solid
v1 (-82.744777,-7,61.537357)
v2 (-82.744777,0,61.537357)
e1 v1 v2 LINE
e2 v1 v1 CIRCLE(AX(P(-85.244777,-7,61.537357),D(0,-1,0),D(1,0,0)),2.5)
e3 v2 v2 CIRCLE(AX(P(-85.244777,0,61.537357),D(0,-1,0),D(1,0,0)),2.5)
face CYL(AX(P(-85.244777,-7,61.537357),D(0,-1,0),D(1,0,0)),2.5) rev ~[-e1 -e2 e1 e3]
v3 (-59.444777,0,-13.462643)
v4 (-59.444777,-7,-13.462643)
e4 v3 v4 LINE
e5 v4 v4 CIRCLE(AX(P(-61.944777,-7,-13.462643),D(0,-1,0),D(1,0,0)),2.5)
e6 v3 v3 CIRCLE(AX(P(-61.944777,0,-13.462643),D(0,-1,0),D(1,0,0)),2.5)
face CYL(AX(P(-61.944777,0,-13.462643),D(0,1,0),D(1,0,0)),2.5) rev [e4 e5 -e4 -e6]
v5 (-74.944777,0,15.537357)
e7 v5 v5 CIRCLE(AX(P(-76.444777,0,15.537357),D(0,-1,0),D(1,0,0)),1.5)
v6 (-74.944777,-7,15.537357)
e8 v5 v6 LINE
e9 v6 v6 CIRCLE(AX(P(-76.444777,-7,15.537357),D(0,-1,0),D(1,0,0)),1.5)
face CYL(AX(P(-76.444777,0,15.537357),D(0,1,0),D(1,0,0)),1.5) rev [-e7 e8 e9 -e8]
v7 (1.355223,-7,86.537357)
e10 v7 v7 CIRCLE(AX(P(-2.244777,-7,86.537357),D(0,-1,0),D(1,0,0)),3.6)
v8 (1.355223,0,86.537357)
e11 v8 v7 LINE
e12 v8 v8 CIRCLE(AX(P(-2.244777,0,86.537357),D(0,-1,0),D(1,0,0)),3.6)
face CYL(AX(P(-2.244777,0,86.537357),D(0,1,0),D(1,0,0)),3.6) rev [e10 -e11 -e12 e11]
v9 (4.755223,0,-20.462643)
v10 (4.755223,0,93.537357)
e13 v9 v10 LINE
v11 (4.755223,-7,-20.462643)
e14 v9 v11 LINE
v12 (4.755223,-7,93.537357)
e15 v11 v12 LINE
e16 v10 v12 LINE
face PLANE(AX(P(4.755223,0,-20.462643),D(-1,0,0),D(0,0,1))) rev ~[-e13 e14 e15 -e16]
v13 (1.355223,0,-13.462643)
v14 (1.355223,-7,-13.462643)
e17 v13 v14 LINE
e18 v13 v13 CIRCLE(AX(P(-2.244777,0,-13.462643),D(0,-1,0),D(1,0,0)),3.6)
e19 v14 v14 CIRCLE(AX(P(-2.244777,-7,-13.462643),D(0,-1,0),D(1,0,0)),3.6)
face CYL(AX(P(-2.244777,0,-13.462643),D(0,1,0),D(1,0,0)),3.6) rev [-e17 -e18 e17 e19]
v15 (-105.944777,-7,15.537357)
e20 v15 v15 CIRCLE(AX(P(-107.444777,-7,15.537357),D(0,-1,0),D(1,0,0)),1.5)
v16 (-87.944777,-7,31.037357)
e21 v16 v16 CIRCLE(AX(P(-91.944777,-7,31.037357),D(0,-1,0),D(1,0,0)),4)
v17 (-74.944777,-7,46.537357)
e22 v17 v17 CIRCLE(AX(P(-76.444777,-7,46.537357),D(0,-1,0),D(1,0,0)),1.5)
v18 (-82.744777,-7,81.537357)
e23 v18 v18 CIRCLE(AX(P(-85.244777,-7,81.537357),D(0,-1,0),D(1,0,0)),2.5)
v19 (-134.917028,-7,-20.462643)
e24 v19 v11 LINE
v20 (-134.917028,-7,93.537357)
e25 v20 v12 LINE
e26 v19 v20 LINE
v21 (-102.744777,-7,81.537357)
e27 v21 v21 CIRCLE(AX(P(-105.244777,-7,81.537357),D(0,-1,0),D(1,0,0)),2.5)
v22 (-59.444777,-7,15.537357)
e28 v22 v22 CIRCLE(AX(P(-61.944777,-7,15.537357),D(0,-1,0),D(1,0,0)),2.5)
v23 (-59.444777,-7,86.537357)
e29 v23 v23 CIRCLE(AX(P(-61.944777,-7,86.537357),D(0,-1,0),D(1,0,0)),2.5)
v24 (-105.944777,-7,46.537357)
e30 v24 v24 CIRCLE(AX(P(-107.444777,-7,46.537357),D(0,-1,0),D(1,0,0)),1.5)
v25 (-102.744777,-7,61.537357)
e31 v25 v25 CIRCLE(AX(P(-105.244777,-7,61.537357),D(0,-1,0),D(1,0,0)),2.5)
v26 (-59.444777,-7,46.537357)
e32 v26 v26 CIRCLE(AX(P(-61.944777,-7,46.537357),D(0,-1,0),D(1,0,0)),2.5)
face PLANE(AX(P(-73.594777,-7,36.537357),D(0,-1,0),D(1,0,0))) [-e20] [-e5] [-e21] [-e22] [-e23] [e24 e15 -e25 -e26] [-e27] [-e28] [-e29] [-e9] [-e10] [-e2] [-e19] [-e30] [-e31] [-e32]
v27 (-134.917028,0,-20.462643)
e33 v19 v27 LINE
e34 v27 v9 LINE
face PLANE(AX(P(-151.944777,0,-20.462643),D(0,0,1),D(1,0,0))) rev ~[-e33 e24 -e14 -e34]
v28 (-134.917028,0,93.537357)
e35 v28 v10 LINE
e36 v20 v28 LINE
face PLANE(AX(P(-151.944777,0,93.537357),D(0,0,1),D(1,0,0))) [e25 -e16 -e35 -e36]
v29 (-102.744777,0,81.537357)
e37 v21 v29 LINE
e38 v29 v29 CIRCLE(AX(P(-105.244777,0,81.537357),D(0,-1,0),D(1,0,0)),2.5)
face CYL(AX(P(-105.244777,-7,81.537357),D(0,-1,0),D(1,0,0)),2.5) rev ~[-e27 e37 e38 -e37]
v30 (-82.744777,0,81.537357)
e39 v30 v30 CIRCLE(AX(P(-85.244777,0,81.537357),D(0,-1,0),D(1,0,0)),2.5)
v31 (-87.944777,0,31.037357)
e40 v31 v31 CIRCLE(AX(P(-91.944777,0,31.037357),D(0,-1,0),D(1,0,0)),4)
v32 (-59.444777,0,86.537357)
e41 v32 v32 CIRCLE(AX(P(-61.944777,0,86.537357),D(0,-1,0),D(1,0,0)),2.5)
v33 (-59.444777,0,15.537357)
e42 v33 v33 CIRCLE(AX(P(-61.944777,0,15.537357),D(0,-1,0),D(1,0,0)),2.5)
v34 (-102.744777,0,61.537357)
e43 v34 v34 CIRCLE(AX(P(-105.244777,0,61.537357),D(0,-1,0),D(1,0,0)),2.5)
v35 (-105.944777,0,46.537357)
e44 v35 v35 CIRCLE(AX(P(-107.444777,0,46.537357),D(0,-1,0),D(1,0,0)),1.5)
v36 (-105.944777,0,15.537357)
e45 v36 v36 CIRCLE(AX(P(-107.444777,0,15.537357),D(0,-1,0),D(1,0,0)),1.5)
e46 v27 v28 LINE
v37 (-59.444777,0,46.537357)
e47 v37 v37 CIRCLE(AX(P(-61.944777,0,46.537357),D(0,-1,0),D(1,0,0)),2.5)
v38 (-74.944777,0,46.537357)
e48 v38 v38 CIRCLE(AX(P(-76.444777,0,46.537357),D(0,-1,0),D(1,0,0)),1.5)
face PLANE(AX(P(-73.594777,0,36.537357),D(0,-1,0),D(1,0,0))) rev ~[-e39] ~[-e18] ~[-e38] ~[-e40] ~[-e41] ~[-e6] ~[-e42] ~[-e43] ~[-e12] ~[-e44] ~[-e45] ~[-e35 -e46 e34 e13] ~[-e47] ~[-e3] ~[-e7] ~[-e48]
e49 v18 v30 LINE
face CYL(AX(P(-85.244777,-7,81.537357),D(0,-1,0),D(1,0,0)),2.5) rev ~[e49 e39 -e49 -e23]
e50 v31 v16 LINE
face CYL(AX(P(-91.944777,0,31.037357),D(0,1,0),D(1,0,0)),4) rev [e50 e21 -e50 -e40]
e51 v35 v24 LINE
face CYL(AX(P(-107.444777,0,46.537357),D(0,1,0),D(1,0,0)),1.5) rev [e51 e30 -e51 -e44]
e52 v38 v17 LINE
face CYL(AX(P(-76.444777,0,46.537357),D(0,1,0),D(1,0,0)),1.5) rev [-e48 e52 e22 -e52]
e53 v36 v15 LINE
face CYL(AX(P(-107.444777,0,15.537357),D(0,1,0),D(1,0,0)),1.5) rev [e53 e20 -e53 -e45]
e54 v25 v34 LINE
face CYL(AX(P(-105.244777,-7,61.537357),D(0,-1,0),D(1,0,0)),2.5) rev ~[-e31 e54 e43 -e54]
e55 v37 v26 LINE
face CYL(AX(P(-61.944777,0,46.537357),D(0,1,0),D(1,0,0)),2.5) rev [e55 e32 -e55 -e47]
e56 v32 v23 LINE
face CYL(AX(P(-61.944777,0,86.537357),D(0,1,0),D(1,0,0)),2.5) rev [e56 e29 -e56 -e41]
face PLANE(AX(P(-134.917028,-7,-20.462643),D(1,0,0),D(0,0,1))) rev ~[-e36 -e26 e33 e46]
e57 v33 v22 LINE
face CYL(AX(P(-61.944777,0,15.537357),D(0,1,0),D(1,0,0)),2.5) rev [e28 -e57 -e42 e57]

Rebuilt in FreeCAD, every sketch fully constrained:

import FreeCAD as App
import Part
import Sketcher
Q = App.Units.Quantity


def add_polygon(sketch, points):
    """Adds a closed chain of lines whose ends are joined by coincident constraints."""
    first, n = sketch.GeometryCount, len(points)
    for a, b in zip(points, points[1:] + points[:1]):
        sketch.addGeometry(Part.LineSegment(App.Vector(*a, 0), App.Vector(*b, 0)), False)
    for i in range(n):
        sketch.addConstraint(Sketcher.Constraint("Coincident", first + i, 2, first + (i + 1) % n, 1))

doc = App.newDocument("Part")
body = doc.addObject("PartDesign::Body", "Body")

sketch1 = doc.addObject("Sketcher::SketchObject", "Sketch")
body.addObject(sketch1)
sketch1.AttachmentSupport = (doc.XZ_Plane, [""])
sketch1.MapMode = "FlatFace"
add_polygon(sketch1, [(-151.9, 93.5), (-151.9, -20.5), (4.8, -20.5), (4.8, 93.5)])
sketch1.addGeometry(Part.Circle(App.Vector(-61.9, -13.5, 0), App.Vector(0, 0, 1), 2.5), False)
sketch1.addGeometry(Part.Circle(App.Vector(-107.4, 15.5, 0), App.Vector(0, 0, 1), 1.5), False)
sketch1.addGeometry(Part.Circle(App.Vector(-91.9, 31, 0), App.Vector(0, 0, 1), 4), False)
sketch1.addGeometry(Part.Circle(App.Vector(-76.4, 15.5, 0), App.Vector(0, 0, 1), 1.5), False)
sketch1.addGeometry(Part.Circle(App.Vector(-61.9, 15.5, 0), App.Vector(0, 0, 1), 2.5), False)
sketch1.addGeometry(Part.Circle(App.Vector(-2.2, -13.5, 0), App.Vector(0, 0, 1), 3.6), False)
sketch1.addGeometry(Part.Circle(App.Vector(-107.4, 46.5, 0), App.Vector(0, 0, 1), 1.5), False)
sketch1.addGeometry(Part.Circle(App.Vector(-76.4, 46.5, 0), App.Vector(0, 0, 1), 1.5), False)
sketch1.addGeometry(Part.Circle(App.Vector(-61.9, 46.5, 0), App.Vector(0, 0, 1), 2.5), False)
sketch1.addGeometry(Part.Circle(App.Vector(-61.9, 86.5, 0), App.Vector(0, 0, 1), 2.5), False)
sketch1.addGeometry(Part.Circle(App.Vector(-2.2, 86.5, 0), App.Vector(0, 0, 1), 3.6), False)
sketch1.addConstraint(Sketcher.Constraint("Vertical", 0))
sketch1.addConstraint(Sketcher.Constraint("Horizontal", 1))
sketch1.addConstraint(Sketcher.Constraint("Vertical", 2))
sketch1.addConstraint(Sketcher.Constraint("Horizontal", 3))
sketch1.addConstraint(Sketcher.Constraint("Equal", 5, 7))
sketch1.addConstraint(Sketcher.Constraint("Equal", 4, 8))
sketch1.addConstraint(Sketcher.Constraint("Equal", 7, 10))
sketch1.addConstraint(Sketcher.Constraint("Equal", 10, 11))
sketch1.addConstraint(Sketcher.Constraint("Equal", 8, 12))
sketch1.addConstraint(Sketcher.Constraint("Equal", 12, 13))
sketch1.addConstraint(Sketcher.Constraint("Equal", 9, 14))
sketch1.addConstraint(Sketcher.Constraint("Horizontal", 5, 3, 7, 3))
sketch1.addConstraint(Sketcher.Constraint("Horizontal", 7, 3, 8, 3))
sketch1.addConstraint(Sketcher.Constraint("Horizontal", 4, 3, 9, 3))
sketch1.addConstraint(Sketcher.Constraint("Horizontal", 10, 3, 11, 3))
sketch1.addConstraint(Sketcher.Constraint("Horizontal", 11, 3, 12, 3))
sketch1.addConstraint(Sketcher.Constraint("Horizontal", 13, 3, 14, 3))
sketch1.addConstraint(Sketcher.Constraint("Vertical", 4, 3, 8, 3))
sketch1.addConstraint(Sketcher.Constraint("Vertical", 5, 3, 10, 3))
sketch1.addConstraint(Sketcher.Constraint("Vertical", 7, 3, 11, 3))
sketch1.addConstraint(Sketcher.Constraint("Vertical", 8, 3, 12, 3))
sketch1.addConstraint(Sketcher.Constraint("Vertical", 12, 3, 13, 3))
sketch1.addConstraint(Sketcher.Constraint("Vertical", 9, 3, 14, 3))
sketch1.addConstraint(Sketcher.Constraint("Diameter", 4, Q("5 mm")))
sketch1.addConstraint(Sketcher.Constraint("Diameter", 5, Q("3 mm")))
sketch1.addConstraint(Sketcher.Constraint("Diameter", 6, Q("8 mm")))
sketch1.addConstraint(Sketcher.Constraint("Diameter", 9, Q("7.2 mm")))
sketch1.addConstraint(Sketcher.Constraint("DistanceY", 0, 2, 0, 1, Q("114 mm")))
sketch1.addConstraint(Sketcher.Constraint("DistanceX", 1, 1, 1, 2, Q("156.7 mm")))
sketch1.addConstraint(Sketcher.Constraint("DistanceY", 4, 3, 5, 3, Q("29 mm")))
sketch1.addConstraint(Sketcher.Constraint("DistanceX", 6, 3, 4, 3, Q("30 mm")))
sketch1.addConstraint(Sketcher.Constraint("DistanceX", 5, 3, 7, 3, Q("31 mm")))
sketch1.addConstraint(Sketcher.Constraint("DistanceY", 5, 3, 10, 3, Q("31 mm")))
sketch1.addConstraint(Sketcher.Constraint("DistanceY", 12, 3, 13, 3, Q("40 mm")))
sketch1.addConstraint(Sketcher.Constraint("DistanceY", 0, 2, 5, 3, Q("36 mm")))
sketch1.addConstraint(Sketcher.Constraint("DistanceX", 0, 2, 6, 3, Q("60 mm")))
sketch1.addConstraint(Sketcher.Constraint("DistanceX", 9, 3, 1, 2, Q("7 mm")))
sketch1.addConstraint(Sketcher.Constraint("DistanceX", 5, 3, 4, 3, Q("45.5 mm")))
sketch1.addConstraint(Sketcher.Constraint("DistanceY", 5, 3, 6, 3, Q("15.5 mm")))
sketch1.addConstraint(Sketcher.Constraint("DistanceX", 4, 3, -1, 1, Q("61.944777 mm")))
sketch1.addConstraint(Sketcher.Constraint("DistanceY", 4, 3, -1, 1, Q("13.462643 mm")))
pad1 = doc.addObject("PartDesign::Pad", "Pad")
body.addObject(pad1)
pad1.Profile = sketch1
pad1.Length = 7

sketch2 = doc.addObject("Sketcher::SketchObject", "Sketch001")
body.addObject(sketch2)
sketch2.AttachmentSupport = (doc.XZ_Plane, [""])
sketch2.MapMode = "FlatFace"
sketch2.AttachmentOffset = App.Placement(App.Vector(0, 0, 7), App.Rotation())
sketch2.addGeometry(Part.Circle(App.Vector(-105.2, 81.5, 0), App.Vector(0, 0, 1), 2.5), False)
sketch2.addGeometry(Part.Circle(App.Vector(-105.2, 61.5, 0), App.Vector(0, 0, 1), 2.5), False)
sketch2.addGeometry(Part.Circle(App.Vector(-85.2, 61.5, 0), App.Vector(0, 0, 1), 2.5), False)
sketch2.addGeometry(Part.Circle(App.Vector(-85.2, 81.5, 0), App.Vector(0, 0, 1), 2.5), False)
add_polygon(sketch2, [(-151.9, 93.5), (-151.9, -20.5), (-134.9, -20.5), (-134.9, 93.5)])
sketch2.addConstraint(Sketcher.Constraint("Vertical", 4))
sketch2.addConstraint(Sketcher.Constraint("Horizontal", 5))
sketch2.addConstraint(Sketcher.Constraint("Vertical", 6))
sketch2.addConstraint(Sketcher.Constraint("Horizontal", 7))
sketch2.addConstraint(Sketcher.Constraint("Equal", 0, 1))
sketch2.addConstraint(Sketcher.Constraint("Equal", 1, 2))
sketch2.addConstraint(Sketcher.Constraint("Equal", 2, 3))
sketch2.addConstraint(Sketcher.Constraint("Horizontal", 1, 3, 2, 3))
sketch2.addConstraint(Sketcher.Constraint("Horizontal", 0, 3, 3, 3))
sketch2.addConstraint(Sketcher.Constraint("Vertical", 0, 3, 1, 3))
sketch2.addConstraint(Sketcher.Constraint("Vertical", 2, 3, 3, 3))
sketch2.addConstraint(Sketcher.Constraint("Diameter", 0, Q("5 mm")))
sketch2.addConstraint(Sketcher.Constraint("DistanceY", 4, 2, 4, 1, Q("114 mm")))
sketch2.addConstraint(Sketcher.Constraint("DistanceY", 1, 3, 0, 3, Q("20 mm")))
sketch2.addConstraint(Sketcher.Constraint("DistanceX", 1, 3, 2, 3, Q("20 mm")))
sketch2.addConstraint(Sketcher.Constraint("DistanceY", 4, 2, 1, 3, Q("82 mm")))
sketch2.addConstraint(Sketcher.Constraint("DistanceX", 4, 2, 1, 3, Q("46.7 mm")))
sketch2.addConstraint(Sketcher.Constraint("DistanceX", 5, 1, 5, 2, Q("17.027749 mm")))
sketch2.addConstraint(Sketcher.Constraint("DistanceX", 5, 2, -1, 1, Q("134.917028 mm")))
sketch2.addConstraint(Sketcher.Constraint("DistanceY", -1, 1, 0, 3, Q("81.537357 mm")))
pocket1 = doc.addObject("PartDesign::Pocket", "Pocket")
body.addObject(pocket1)
pocket1.Profile = sketch2
pocket1.Length = 25

doc.recompute()
